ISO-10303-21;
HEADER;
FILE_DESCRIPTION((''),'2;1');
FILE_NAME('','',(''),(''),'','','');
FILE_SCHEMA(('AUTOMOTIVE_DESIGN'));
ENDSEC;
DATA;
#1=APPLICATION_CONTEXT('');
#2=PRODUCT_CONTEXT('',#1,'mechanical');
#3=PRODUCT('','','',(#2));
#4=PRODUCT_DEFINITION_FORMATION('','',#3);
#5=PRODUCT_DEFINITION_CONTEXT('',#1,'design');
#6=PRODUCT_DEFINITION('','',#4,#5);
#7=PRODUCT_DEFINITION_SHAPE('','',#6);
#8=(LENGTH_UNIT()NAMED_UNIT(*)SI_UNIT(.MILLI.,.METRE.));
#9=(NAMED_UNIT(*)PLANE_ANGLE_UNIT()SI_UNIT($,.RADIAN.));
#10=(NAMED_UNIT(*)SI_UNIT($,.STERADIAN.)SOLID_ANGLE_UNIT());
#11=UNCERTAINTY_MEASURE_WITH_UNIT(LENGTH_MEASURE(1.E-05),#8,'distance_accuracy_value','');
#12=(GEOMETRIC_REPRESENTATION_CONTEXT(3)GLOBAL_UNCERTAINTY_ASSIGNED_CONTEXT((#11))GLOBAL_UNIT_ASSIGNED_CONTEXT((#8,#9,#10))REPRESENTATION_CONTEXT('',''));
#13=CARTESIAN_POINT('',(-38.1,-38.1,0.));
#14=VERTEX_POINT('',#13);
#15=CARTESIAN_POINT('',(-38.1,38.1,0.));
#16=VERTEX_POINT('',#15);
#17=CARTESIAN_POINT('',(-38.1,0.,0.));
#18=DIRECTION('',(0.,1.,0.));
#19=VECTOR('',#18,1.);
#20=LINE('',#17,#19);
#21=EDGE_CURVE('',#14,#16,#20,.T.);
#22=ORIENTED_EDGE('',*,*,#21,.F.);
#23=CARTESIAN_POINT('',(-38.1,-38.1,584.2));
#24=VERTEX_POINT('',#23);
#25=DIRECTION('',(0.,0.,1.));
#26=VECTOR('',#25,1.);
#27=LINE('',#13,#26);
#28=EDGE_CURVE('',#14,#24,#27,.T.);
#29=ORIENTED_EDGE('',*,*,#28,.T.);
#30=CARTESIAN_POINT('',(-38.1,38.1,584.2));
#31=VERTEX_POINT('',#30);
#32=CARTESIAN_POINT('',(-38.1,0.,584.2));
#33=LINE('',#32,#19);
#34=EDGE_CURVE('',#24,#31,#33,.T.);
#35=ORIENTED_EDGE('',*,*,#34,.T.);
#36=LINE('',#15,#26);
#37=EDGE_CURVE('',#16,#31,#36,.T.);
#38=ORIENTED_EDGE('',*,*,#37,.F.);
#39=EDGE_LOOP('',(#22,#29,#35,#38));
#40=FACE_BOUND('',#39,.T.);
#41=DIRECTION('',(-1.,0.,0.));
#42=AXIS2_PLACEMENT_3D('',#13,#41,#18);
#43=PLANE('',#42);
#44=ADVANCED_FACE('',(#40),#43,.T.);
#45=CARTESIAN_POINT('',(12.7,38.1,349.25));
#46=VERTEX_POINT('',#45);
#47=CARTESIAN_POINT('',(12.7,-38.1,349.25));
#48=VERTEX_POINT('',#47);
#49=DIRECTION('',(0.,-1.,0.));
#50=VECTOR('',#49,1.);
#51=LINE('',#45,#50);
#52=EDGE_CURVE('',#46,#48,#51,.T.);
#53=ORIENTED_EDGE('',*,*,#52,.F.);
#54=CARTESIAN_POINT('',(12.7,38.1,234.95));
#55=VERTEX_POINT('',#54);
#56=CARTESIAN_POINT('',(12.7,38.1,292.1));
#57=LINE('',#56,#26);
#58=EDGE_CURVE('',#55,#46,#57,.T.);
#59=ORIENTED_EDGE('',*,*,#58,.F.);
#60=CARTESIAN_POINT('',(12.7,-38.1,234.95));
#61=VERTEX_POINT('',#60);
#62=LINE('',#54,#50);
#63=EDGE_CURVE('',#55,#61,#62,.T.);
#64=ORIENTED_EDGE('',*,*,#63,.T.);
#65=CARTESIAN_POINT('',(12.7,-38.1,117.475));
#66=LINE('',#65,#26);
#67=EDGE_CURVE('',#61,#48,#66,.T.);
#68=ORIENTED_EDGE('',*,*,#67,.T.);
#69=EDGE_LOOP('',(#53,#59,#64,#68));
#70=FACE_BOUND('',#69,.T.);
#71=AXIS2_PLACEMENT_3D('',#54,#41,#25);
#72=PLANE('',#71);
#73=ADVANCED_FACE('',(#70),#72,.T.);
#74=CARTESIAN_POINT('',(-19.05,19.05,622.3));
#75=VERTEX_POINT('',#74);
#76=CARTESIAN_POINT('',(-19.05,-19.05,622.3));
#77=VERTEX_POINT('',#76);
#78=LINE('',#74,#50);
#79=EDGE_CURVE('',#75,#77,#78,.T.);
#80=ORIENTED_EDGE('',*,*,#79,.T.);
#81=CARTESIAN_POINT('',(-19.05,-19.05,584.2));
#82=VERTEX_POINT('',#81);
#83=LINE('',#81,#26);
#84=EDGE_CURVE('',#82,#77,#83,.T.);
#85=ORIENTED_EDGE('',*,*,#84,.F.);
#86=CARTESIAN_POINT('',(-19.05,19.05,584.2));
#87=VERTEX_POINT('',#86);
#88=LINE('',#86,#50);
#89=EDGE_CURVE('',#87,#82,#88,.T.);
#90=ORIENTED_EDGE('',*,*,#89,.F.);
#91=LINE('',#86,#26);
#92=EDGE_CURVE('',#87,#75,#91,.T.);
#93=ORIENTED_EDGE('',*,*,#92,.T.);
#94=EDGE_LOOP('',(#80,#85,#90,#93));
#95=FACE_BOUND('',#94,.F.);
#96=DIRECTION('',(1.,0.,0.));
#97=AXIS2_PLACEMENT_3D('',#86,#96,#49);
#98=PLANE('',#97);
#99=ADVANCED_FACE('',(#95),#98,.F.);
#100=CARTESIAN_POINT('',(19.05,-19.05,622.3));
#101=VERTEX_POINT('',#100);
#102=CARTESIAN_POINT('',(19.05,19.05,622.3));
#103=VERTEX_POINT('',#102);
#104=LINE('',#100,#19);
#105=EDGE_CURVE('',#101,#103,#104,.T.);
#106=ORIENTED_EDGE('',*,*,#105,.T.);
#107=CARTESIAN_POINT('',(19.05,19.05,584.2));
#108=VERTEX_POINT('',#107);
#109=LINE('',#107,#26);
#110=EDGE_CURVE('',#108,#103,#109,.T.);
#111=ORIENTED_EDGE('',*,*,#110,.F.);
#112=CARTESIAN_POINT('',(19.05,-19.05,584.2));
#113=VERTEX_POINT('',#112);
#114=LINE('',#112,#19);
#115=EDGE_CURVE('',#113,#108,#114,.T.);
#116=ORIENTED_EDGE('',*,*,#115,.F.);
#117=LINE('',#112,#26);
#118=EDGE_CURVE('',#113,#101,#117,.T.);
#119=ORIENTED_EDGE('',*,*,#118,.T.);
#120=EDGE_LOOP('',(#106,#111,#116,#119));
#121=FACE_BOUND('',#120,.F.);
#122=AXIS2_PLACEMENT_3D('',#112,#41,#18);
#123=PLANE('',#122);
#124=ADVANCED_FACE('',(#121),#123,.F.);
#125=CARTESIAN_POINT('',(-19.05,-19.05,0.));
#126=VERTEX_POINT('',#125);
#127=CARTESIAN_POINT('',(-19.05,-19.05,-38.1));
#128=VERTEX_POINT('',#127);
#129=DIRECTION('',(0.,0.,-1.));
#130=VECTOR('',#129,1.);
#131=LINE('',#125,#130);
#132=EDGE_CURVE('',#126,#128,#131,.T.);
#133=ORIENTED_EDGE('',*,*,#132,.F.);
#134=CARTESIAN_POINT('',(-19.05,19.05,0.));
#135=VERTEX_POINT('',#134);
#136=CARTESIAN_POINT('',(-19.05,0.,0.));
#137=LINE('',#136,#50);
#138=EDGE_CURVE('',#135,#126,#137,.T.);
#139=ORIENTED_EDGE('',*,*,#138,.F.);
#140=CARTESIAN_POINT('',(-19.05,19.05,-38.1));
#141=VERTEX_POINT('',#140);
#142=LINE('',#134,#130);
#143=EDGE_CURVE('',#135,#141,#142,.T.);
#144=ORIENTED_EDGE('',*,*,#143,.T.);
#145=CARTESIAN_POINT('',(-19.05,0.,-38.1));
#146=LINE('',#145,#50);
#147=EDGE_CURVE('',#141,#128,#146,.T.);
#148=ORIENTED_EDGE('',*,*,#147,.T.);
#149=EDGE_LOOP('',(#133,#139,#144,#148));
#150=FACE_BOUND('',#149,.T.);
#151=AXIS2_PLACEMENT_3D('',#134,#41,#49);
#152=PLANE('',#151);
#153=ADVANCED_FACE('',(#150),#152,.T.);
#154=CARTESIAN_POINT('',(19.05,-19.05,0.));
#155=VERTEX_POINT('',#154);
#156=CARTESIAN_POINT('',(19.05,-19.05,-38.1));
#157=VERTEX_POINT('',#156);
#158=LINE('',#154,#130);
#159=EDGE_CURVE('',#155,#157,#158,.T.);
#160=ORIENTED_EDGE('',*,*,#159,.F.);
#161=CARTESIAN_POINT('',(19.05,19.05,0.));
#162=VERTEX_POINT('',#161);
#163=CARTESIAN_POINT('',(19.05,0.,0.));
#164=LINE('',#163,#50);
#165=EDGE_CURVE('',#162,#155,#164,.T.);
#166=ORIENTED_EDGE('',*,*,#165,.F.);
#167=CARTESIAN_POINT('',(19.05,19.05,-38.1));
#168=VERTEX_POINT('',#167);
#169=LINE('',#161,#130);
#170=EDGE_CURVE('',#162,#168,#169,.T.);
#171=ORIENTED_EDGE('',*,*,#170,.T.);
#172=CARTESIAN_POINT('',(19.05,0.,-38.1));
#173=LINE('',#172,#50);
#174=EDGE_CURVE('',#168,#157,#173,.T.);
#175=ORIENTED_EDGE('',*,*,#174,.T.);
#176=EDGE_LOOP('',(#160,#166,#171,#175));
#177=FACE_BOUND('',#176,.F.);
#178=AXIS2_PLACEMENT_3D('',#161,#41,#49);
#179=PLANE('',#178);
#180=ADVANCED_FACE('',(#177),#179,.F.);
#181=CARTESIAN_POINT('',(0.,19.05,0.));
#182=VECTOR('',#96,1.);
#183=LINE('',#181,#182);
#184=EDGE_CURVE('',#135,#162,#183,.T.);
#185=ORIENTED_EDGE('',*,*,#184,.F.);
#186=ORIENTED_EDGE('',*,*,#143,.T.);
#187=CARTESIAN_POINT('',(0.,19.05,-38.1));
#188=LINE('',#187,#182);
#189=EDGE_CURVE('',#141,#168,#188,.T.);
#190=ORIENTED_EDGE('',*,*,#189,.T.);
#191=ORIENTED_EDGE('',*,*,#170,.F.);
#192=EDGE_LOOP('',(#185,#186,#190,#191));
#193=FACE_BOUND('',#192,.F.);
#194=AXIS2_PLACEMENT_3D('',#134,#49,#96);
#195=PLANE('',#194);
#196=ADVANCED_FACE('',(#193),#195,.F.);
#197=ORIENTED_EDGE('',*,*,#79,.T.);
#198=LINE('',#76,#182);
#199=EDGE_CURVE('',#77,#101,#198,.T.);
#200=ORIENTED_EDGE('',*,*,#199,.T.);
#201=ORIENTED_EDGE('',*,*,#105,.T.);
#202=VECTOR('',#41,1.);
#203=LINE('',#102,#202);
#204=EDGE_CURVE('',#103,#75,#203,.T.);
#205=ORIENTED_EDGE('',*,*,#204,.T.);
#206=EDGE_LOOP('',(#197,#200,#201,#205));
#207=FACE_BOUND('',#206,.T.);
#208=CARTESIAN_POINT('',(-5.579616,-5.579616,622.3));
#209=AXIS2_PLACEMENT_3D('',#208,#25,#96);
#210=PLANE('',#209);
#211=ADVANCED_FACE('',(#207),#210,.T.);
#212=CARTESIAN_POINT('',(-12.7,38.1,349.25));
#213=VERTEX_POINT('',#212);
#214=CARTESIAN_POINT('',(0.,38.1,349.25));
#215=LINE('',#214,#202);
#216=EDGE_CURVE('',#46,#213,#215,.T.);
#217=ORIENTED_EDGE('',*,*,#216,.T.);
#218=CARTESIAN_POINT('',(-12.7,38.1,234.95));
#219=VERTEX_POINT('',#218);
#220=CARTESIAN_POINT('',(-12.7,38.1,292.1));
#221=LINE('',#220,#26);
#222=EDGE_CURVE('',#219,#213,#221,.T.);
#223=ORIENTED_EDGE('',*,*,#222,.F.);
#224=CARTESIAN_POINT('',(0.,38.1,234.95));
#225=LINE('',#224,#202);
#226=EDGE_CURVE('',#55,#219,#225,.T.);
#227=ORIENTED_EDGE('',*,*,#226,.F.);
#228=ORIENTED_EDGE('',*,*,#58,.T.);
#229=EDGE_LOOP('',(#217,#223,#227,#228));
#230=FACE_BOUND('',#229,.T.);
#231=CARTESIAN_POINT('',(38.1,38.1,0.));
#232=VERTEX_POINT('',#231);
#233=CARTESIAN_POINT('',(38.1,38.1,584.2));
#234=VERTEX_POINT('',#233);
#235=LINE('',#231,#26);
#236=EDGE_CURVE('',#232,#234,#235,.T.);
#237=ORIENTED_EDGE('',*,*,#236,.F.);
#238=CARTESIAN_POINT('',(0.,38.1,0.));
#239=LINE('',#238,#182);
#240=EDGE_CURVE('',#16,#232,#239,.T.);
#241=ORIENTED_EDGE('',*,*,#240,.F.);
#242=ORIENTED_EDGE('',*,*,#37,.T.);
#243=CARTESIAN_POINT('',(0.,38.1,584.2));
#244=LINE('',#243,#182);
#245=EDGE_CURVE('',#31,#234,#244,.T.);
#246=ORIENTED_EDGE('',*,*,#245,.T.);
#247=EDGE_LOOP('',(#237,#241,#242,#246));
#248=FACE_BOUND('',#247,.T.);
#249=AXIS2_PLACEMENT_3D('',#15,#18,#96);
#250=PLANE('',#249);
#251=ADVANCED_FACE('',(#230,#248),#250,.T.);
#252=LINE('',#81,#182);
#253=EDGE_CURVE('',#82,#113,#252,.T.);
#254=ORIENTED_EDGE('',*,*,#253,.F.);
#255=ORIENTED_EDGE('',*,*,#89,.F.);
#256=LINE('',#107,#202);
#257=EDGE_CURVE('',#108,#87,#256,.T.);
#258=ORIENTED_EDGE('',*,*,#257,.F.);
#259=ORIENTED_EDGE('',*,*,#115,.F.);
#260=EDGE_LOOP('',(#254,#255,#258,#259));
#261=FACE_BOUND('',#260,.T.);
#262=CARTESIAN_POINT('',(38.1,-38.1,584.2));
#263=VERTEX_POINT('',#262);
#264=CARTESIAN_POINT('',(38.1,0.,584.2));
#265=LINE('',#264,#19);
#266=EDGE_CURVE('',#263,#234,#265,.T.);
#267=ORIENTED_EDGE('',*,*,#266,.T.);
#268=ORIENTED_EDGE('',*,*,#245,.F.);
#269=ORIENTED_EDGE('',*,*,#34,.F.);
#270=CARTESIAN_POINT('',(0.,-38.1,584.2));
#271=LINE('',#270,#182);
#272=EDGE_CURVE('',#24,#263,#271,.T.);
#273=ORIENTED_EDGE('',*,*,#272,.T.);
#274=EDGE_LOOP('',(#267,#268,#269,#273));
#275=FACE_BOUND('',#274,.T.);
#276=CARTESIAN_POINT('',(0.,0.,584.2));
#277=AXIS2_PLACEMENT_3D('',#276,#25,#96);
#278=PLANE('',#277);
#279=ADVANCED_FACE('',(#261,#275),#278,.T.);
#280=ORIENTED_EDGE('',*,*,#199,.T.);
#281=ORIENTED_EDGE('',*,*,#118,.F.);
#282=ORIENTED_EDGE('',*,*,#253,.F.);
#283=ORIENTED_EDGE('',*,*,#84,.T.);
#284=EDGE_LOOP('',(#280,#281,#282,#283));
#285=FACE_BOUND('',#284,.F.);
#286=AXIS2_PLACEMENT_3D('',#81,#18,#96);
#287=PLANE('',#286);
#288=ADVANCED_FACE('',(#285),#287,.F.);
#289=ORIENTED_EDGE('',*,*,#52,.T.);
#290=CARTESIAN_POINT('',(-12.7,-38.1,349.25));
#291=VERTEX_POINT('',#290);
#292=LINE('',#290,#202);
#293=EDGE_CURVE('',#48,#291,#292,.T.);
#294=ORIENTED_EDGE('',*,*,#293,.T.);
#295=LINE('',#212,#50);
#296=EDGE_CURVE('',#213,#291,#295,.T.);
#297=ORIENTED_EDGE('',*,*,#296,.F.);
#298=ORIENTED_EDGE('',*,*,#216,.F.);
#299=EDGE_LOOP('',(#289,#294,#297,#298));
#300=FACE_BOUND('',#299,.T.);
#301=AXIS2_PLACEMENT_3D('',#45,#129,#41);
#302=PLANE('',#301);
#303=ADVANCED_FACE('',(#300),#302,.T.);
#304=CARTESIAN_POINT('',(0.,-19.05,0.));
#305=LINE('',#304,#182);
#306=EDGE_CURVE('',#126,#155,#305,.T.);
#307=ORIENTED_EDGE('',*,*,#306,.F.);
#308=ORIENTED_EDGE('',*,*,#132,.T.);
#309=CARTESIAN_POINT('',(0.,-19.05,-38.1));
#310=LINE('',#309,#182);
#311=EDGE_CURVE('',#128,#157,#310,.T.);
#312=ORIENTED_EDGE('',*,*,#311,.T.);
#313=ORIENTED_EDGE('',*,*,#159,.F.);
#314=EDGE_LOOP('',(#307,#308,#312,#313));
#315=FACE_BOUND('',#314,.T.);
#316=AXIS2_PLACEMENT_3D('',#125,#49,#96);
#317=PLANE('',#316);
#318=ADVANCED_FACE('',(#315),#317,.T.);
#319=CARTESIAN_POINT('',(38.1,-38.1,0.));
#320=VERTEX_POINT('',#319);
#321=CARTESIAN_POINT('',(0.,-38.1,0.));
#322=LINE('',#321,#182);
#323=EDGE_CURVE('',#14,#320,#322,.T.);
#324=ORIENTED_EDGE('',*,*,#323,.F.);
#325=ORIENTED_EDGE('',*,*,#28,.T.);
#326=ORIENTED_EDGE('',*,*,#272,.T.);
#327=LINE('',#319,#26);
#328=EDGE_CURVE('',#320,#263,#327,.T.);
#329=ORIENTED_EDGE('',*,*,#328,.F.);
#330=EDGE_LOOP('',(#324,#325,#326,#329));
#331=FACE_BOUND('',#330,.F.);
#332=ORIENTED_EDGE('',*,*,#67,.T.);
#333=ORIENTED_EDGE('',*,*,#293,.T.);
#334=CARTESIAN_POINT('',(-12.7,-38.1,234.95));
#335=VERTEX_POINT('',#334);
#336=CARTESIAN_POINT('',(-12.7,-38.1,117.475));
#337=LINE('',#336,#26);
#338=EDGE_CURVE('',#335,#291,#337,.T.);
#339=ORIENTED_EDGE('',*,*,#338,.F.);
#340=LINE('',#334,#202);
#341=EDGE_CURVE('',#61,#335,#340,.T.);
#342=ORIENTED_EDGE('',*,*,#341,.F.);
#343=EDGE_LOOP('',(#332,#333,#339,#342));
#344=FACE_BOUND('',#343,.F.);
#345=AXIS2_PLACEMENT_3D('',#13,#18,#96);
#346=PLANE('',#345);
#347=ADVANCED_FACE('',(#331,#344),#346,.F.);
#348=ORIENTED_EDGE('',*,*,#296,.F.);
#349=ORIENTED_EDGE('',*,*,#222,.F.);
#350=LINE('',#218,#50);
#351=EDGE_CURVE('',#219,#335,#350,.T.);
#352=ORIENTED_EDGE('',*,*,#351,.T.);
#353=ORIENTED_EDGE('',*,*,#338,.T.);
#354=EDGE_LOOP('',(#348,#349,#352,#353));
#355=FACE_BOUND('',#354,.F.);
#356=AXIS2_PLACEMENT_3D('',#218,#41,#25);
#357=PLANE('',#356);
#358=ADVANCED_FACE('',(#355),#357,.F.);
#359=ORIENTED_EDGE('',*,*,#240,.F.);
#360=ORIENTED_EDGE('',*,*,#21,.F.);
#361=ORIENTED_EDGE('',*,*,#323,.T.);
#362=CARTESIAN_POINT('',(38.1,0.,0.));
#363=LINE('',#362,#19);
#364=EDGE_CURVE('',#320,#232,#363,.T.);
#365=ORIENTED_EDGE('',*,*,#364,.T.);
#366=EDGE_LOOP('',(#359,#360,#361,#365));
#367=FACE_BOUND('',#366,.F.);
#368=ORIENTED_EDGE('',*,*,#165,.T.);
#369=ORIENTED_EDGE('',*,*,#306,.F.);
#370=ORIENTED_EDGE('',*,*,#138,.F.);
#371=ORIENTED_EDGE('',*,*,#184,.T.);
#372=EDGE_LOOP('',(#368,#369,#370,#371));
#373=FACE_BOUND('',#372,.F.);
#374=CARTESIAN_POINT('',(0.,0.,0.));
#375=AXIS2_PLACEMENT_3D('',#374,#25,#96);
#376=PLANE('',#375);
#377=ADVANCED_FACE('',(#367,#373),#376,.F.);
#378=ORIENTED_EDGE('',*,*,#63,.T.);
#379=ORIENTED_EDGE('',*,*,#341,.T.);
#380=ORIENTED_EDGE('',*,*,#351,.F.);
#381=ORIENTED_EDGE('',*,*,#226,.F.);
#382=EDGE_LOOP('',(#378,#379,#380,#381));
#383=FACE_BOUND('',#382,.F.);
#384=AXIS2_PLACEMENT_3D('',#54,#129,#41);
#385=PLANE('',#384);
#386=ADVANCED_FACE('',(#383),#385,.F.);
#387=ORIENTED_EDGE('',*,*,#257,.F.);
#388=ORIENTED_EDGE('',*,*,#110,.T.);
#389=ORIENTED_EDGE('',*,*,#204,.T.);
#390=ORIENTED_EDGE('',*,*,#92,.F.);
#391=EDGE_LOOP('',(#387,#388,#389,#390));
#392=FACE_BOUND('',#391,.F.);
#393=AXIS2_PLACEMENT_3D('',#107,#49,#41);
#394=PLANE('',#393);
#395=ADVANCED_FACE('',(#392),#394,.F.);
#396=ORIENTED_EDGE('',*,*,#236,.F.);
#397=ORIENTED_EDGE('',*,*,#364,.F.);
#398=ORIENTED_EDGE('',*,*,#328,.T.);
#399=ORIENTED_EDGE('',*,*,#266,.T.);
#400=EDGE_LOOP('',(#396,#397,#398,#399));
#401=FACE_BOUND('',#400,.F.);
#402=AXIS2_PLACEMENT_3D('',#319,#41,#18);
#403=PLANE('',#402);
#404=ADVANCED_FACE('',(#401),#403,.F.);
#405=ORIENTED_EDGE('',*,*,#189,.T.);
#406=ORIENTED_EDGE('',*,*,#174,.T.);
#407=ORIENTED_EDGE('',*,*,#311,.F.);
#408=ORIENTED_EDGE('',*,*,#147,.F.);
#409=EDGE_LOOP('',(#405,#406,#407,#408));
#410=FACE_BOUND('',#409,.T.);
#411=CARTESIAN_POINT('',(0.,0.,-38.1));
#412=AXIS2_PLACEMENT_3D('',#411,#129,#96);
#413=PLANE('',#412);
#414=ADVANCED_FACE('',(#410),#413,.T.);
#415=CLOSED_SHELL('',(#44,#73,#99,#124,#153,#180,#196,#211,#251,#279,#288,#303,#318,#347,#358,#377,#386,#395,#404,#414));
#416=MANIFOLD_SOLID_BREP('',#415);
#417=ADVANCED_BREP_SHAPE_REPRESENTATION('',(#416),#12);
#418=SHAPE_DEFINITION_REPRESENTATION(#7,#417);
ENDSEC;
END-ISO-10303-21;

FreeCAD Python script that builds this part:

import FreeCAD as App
import Part
import Sketcher
from FreeCAD import Vector
Q = App.Units.Quantity

doc = App.newDocument("Part")
body = doc.addObject("PartDesign::Body", "Body")

# Sketch on XY plane
sketch1 = body.newObject("Sketcher::SketchObject", "Sketch")
sketch1.AttachmentSupport = (doc.getObject("XY_Plane"), [""])
sketch1.MapMode = "FlatFace"
sketch1.addGeometry([
    Part.LineSegment(Vector(-38, 38, 0), Vector(-38, -38, 0)),
    Part.LineSegment(Vector(-38, -38, 0), Vector(38, -38, 0)),
    Part.LineSegment(Vector(38, -38, 0), Vector(38, 38, 0)),
    Part.LineSegment(Vector(38, 38, 0), Vector(-38, 38, 0)),
], False)
sketch1.addConstraint([
    Sketcher.Constraint("Coincident", 0, 2, 1, 1),
    Sketcher.Constraint("Coincident", 1, 2, 2, 1),
    Sketcher.Constraint("Coincident", 2, 2, 3, 1),
    Sketcher.Constraint("Coincident", 3, 2, 0, 1),
    Sketcher.Constraint("Vertical", 0),
    Sketcher.Constraint("Horizontal", 1),
    Sketcher.Constraint("Vertical", 2),
    Sketcher.Constraint("Horizontal", 3),
    Sketcher.Constraint("Symmetric", 0, 2, 2, 2, -1, 1),
    Sketcher.Constraint("Equal", 3, 0),
    Sketcher.Constraint("DistanceX", 1, 1, 1, 2, Q("3 in")),
])
pad1 = body.newObject("PartDesign::Pad", "Pad")
pad1.Profile = sketch1
pad1.Length = Q("23 in")

# Sketch on XY plane
sketch2 = body.newObject("Sketcher::SketchObject", "Sketch001")
sketch2.AttachmentSupport = (doc.getObject("XY_Plane"), [""])
sketch2.MapMode = "FlatFace"
sketch2.AttachmentOffset = App.Placement(Vector(0, 0, 23 * 25.4), App.Rotation())
sketch2.addGeometry([
    Part.LineSegment(Vector(-19, -19, 0), Vector(19, -19, 0)),
    Part.LineSegment(Vector(19, -19, 0), Vector(19, 19, 0)),
    Part.LineSegment(Vector(19, 19, 0), Vector(-19, 19, 0)),
    Part.LineSegment(Vector(-19, 19, 0), Vector(-19, -19, 0)),
], False)
sketch2.addConstraint([
    Sketcher.Constraint("Coincident", 0, 2, 1, 1),
    Sketcher.Constraint("Coincident", 1, 2, 2, 1),
    Sketcher.Constraint("Coincident", 2, 2, 3, 1),
    Sketcher.Constraint("Coincident", 3, 2, 0, 1),
    Sketcher.Constraint("Horizontal", 0),
    Sketcher.Constraint("Vertical", 1),
    Sketcher.Constraint("Horizontal", 2),
    Sketcher.Constraint("Vertical", 3),
    Sketcher.Constraint("Symmetric", 0, 2, 2, 2, -1, 1),
    Sketcher.Constraint("Equal", 2, 1),
    Sketcher.Constraint("DistanceX", 0, 1, 0, 2, Q("1.5 in")),
])
pad2 = body.newObject("PartDesign::Pad", "Pad001")
pad2.Profile = sketch2
pad2.Length = Q("1.5 in")

# Sketch on XY plane
sketch3 = body.newObject("Sketcher::SketchObject", "Sketch002")
sketch3.AttachmentSupport = (doc.getObject("XY_Plane"), [""])
sketch3.MapMode = "FlatFace"
sketch3.addGeometry([
    Part.LineSegment(Vector(-19, -19, 0), Vector(-19, 19, 0)),
    Part.LineSegment(Vector(-19, 19, 0), Vector(19, 19, 0)),
    Part.LineSegment(Vector(19, 19, 0), Vector(19, -19, 0)),
    Part.LineSegment(Vector(19, -19, 0), Vector(-19, -19, 0)),
], False)
sketch3.addConstraint([
    Sketcher.Constraint("Coincident", 0, 2, 1, 1),
    Sketcher.Constraint("Coincident", 1, 2, 2, 1),
    Sketcher.Constraint("Coincident", 2, 2, 3, 1),
    Sketcher.Constraint("Coincident", 3, 2, 0, 1),
    Sketcher.Constraint("Vertical", 0),
    Sketcher.Constraint("Horizontal", 1),
    Sketcher.Constraint("Vertical", 2),
    Sketcher.Constraint("Horizontal", 3),
    Sketcher.Constraint("Symmetric", 0, 2, 2, 2, -1, 1),
    Sketcher.Constraint("Equal", 3, 0),
    Sketcher.Constraint("DistanceX", 1, 1, 1, 2, Q("1.5 in")),
])
pad3 = body.newObject("PartDesign::Pad", "Pad002")
pad3.Profile = sketch3
pad3.Length = Q("1.5 in")
pad3.Reversed = True

# Sketch on XZ plane
sketch4 = body.newObject("Sketcher::SketchObject", "Sketch003")
sketch4.AttachmentSupport = (doc.getObject("XZ_Plane"), [""])
sketch4.MapMode = "FlatFace"
sketch4.AttachmentOffset = App.Placement(Vector(0, 0, -1.5 * 25.4), App.Rotation())
sketch4.addGeometry([
    Part.LineSegment(Vector(13, 349, 0), Vector(13, 235, 0)),
    Part.LineSegment(Vector(13, 235, 0), Vector(-13, 235, 0)),
    Part.LineSegment(Vector(-13, 235, 0), Vector(-13, 349, 0)),
    Part.LineSegment(Vector(-13, 349, 0), Vector(13, 349, 0)),
], False)
sketch4.addConstraint([
    Sketcher.Constraint("Coincident", 0, 2, 1, 1),
    Sketcher.Constraint("Coincident", 1, 2, 2, 1),
    Sketcher.Constraint("Coincident", 2, 2, 3, 1),
    Sketcher.Constraint("Coincident", 3, 2, 0, 1),
    Sketcher.Constraint("Vertical", 0),
    Sketcher.Constraint("Horizontal", 1),
    Sketcher.Constraint("Vertical", 2),
    Sketcher.Constraint("Horizontal", 3),
    Sketcher.Constraint("DistanceX", 1, 2, 1, 1, Q("1 in")),
    Sketcher.Constraint("DistanceY", 0, 2, 0, 1, Q("4.5 in")),
    Sketcher.Constraint("DistanceX", -1, 1, 0, 2, Q("0.5 in")),
    Sketcher.Constraint("DistanceY", -1, 1, 0, 2, Q("9.25 in")),
])
pocket1 = body.newObject("PartDesign::Pocket", "Pocket")
pocket1.Profile = sketch4
pocket1.Type = "ThroughAll"
pocket1.Reversed = True

doc.recompute()
